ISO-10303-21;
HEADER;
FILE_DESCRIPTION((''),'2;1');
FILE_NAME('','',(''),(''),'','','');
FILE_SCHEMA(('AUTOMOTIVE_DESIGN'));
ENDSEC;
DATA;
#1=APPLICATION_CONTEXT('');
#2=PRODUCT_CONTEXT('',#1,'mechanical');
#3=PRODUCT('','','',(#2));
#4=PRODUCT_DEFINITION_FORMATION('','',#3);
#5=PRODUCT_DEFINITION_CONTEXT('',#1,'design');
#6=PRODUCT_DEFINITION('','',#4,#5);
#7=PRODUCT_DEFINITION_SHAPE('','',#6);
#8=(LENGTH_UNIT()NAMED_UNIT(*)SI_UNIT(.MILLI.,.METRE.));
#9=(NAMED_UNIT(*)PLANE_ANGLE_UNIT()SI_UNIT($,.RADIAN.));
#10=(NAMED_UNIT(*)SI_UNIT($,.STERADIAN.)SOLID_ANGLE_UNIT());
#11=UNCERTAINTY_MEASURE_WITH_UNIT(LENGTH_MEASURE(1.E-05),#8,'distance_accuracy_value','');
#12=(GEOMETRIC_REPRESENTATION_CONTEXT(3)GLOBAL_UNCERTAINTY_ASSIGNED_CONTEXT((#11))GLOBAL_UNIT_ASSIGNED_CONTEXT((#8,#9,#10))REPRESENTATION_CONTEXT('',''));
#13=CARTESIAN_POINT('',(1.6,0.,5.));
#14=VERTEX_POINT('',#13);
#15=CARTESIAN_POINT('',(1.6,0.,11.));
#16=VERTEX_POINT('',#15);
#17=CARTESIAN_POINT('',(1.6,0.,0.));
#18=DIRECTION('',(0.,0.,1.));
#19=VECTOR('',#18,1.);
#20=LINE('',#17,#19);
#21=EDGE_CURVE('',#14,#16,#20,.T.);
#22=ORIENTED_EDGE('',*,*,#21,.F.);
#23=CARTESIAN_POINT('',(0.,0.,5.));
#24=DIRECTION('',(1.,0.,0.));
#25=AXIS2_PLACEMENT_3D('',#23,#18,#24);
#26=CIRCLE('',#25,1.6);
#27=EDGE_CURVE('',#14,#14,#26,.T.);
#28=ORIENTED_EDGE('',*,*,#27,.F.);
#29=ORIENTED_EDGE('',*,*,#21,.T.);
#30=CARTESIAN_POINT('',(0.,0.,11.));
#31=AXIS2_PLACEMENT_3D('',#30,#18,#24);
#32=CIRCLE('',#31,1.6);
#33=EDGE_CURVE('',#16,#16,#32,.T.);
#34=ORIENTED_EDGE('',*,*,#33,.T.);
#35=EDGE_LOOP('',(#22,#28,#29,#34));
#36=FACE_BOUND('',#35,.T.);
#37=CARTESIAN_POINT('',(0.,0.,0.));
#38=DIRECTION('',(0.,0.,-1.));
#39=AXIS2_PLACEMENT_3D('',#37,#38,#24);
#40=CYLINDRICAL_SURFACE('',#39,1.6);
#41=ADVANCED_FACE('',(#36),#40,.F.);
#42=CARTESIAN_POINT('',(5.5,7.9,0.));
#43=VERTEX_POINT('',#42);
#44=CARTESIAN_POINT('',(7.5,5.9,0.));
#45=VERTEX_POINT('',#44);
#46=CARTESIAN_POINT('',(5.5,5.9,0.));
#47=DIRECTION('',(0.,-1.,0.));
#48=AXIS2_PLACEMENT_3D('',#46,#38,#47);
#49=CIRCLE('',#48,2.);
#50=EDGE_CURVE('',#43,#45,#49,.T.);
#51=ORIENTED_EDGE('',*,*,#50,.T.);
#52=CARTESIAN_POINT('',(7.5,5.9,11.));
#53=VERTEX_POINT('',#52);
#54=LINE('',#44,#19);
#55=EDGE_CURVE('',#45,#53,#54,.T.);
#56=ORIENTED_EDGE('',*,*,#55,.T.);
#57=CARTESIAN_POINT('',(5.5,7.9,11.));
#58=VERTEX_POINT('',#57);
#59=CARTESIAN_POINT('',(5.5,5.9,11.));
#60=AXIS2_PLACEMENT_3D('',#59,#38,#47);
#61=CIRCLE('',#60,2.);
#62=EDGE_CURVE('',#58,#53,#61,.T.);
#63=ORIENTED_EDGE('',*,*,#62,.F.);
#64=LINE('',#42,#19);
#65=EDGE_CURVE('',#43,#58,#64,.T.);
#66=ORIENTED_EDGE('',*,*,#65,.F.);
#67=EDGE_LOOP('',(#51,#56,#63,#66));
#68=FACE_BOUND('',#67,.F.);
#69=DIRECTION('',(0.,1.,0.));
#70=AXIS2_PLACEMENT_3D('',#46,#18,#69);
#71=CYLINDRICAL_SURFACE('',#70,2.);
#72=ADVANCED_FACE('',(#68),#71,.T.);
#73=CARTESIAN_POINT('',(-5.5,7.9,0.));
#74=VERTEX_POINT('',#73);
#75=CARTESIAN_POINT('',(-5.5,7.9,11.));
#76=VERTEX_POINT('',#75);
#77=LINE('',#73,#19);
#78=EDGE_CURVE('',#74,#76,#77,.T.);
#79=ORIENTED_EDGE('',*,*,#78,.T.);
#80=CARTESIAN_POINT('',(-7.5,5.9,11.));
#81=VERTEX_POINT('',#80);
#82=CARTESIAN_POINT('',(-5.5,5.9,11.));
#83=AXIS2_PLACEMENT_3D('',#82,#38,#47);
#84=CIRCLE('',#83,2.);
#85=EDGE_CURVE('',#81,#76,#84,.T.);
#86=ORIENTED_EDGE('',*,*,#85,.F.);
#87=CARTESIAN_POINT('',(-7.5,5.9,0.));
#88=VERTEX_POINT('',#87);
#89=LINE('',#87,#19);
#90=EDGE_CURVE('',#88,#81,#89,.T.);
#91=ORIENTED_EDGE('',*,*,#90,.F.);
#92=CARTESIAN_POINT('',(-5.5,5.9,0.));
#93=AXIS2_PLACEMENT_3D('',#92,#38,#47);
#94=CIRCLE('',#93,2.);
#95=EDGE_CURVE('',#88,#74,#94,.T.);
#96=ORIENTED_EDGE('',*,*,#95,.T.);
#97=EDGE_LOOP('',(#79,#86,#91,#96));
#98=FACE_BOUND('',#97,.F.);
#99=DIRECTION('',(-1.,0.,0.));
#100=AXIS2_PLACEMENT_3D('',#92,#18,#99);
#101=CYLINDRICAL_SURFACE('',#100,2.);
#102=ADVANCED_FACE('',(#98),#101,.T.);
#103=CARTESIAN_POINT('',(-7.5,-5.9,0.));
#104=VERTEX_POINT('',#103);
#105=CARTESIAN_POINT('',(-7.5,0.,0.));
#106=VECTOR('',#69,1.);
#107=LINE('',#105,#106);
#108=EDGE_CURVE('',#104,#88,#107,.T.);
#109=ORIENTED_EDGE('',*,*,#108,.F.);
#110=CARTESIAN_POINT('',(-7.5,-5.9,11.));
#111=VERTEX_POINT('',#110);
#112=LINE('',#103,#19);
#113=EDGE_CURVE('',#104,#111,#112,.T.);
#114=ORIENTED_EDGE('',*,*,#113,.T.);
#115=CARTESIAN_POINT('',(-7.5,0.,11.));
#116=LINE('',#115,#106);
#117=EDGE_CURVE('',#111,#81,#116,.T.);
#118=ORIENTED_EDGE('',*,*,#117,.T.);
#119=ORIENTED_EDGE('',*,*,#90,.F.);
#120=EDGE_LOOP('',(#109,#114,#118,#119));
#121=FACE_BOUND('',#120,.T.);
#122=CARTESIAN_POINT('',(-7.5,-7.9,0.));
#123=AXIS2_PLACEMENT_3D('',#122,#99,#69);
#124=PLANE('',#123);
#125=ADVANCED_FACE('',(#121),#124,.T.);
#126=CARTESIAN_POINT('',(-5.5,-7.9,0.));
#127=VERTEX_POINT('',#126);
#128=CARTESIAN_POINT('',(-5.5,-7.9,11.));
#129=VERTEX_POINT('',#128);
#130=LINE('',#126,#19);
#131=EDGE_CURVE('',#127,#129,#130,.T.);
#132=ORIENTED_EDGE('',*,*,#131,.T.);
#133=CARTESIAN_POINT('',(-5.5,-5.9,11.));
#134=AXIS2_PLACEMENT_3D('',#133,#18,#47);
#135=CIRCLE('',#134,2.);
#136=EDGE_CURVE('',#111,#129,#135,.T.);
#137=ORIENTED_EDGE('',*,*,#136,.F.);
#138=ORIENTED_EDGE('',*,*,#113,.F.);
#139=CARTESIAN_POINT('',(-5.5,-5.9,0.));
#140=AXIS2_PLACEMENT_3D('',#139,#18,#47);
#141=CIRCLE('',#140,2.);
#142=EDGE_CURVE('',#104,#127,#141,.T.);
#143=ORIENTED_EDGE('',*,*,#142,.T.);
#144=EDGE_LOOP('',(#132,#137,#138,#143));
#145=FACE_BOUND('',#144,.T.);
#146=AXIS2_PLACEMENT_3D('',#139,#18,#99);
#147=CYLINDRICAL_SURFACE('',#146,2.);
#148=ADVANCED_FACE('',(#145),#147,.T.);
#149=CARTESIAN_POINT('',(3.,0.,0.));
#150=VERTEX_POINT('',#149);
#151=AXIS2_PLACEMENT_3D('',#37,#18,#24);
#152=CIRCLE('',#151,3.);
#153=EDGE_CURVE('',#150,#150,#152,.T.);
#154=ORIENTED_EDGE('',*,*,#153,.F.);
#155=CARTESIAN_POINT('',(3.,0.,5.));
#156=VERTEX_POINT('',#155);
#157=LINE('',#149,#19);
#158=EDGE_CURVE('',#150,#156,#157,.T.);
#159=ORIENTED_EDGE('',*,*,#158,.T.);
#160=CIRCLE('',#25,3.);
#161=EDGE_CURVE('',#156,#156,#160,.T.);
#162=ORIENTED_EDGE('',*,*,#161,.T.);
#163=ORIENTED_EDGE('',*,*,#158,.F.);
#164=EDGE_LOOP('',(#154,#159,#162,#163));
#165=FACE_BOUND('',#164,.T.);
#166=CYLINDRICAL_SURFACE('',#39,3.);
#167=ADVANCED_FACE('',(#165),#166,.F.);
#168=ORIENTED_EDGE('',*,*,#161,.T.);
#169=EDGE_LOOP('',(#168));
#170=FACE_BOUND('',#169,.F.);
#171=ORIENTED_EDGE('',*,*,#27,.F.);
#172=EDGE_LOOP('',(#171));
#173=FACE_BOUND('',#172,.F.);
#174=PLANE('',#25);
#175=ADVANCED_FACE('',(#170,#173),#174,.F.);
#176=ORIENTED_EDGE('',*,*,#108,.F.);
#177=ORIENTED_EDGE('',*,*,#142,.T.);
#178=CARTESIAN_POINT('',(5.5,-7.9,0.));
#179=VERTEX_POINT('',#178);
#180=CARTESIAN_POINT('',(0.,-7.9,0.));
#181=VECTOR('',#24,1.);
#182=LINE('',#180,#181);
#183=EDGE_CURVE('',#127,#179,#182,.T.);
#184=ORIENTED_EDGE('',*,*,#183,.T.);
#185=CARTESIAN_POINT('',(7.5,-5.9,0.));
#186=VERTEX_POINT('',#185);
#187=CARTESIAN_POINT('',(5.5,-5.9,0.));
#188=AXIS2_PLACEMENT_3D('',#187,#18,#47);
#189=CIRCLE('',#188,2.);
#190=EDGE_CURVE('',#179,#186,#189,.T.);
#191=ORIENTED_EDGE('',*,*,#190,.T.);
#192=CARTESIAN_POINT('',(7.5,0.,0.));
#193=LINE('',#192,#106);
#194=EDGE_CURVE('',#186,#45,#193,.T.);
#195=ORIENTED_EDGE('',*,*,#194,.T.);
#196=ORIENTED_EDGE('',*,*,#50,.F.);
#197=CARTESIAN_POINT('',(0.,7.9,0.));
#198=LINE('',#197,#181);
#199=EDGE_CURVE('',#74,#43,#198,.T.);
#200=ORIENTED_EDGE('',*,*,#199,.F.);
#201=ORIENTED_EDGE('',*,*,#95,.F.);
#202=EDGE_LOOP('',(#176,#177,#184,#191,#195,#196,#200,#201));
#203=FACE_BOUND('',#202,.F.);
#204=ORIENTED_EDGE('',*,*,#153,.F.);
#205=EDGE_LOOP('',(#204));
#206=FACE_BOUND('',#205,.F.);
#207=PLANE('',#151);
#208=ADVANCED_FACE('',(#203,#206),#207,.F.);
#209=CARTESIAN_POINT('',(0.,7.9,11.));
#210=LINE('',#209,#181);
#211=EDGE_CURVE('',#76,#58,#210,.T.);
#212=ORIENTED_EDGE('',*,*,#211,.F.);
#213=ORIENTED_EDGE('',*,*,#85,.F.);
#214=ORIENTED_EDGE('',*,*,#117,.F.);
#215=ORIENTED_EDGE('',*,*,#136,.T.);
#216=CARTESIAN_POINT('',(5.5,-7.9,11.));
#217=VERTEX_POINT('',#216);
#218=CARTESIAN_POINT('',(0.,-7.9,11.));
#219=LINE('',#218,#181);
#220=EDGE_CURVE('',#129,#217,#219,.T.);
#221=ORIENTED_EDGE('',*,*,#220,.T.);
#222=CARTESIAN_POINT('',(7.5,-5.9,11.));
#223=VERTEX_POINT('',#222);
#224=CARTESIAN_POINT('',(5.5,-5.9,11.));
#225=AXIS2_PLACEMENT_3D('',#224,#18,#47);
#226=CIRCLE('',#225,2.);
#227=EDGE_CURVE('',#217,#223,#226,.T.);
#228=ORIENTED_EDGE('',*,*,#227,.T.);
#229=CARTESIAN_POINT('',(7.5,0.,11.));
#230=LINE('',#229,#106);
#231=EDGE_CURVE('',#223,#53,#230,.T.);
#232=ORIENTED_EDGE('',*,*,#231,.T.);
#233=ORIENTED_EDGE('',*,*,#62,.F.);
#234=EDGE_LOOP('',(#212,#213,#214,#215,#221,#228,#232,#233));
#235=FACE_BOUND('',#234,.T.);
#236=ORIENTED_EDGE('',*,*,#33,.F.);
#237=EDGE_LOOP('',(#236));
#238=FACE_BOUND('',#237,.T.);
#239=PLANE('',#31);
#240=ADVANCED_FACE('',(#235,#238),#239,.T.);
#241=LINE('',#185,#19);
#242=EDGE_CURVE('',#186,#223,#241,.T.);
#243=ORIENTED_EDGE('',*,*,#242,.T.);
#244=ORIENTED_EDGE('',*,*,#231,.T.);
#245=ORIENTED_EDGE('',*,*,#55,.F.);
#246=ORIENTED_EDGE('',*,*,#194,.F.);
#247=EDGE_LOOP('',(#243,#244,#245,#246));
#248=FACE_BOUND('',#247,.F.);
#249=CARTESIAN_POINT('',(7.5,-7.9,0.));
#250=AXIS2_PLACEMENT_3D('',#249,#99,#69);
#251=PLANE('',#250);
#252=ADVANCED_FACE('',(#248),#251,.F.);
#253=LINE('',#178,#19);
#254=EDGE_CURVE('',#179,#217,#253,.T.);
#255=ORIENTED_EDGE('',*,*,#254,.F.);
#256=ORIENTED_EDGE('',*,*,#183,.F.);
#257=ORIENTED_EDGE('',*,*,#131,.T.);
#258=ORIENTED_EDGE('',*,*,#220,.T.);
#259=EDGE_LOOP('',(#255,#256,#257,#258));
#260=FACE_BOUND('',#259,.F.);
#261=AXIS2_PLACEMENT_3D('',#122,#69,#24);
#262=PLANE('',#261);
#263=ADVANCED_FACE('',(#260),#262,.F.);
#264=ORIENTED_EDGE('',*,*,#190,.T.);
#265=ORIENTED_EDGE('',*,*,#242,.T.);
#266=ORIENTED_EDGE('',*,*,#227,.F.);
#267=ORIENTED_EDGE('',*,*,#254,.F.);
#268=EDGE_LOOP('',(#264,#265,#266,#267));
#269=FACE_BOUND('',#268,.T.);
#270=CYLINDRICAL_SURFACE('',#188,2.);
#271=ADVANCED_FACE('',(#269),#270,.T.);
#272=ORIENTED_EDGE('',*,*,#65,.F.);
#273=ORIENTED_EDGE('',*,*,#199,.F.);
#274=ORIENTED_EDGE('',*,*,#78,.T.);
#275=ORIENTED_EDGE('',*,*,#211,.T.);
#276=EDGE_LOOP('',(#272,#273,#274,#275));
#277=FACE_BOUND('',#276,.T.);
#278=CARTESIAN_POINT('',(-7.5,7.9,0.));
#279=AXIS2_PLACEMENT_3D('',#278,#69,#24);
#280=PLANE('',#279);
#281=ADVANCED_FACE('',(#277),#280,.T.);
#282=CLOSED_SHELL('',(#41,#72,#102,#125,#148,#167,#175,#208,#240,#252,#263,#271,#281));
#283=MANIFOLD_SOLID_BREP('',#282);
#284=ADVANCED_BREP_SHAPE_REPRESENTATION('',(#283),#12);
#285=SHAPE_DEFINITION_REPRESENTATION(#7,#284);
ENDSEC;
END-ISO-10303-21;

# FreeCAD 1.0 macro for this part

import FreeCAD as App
import Part
import Sketcher

V = App.Vector
Q = App.Units.Quantity


def edges_at(feature, points):
    """Names of the edges that pass closest to the given points."""
    edges = feature.Shape.Edges
    near = lambda p: min(range(len(edges)), key=lambda i: edges[i].distToShape(Part.Vertex(*p))[0])
    return sorted({f"Edge{near(p) + 1}" for p in points})


def add_polygon(sketch, points):
    """Adds a closed chain of lines whose ends are joined by coincident constraints."""
    first, n = sketch.GeometryCount, len(points)
    for a, b in zip(points, points[1:] + points[:1]):
        sketch.addGeometry(Part.LineSegment(App.Vector(*a, 0), App.Vector(*b, 0)), False)
    for i in range(n):
        sketch.addConstraint(Sketcher.Constraint("Coincident", first + i, 2, first + (i + 1) % n, 1))

doc = App.newDocument("Part")
params = doc.addObject("Spreadsheet::Sheet", "Params")
for row, (alias, value) in enumerate([
    ("sketch1_diameter", "3.2 mm"),
    ("sketch1_width", "15 mm"),
    ("sketch1_height", "15.8 mm"),
    ("pad1_length", "11 mm"),
    ("sketch2_diameter", "6 mm"),
    ("sketch2_diameter2", "3.2 mm"),
    ("pocket1_length", "5 mm"),
    ("fillet_radius", "2 mm"),
], start=1):
    params.set(f"A{row}", alias)
    params.set(f"B{row}", "=" + value)
    params.setAlias(f"B{row}", alias)

body = doc.addObject("PartDesign::Body", "Body")

# Sketch on XY plane
sketch1 = doc.addObject("Sketcher::SketchObject", "Sketch")
body.addObject(sketch1)
sketch1.AttachmentSupport = (doc.XY_Plane, [""])
sketch1.MapMode = "FlatFace"
add_polygon(sketch1, [(-7.5, 7.9), (-7.5, -7.9), (7.5, -7.9), (7.5, 7.9)])  # lines 0-3
sketch1.addGeometry(Part.Circle(V(0, 0, 0), V(0, 0, 1), 1.6), False)  # 4
sketch1.addConstraint([
    Sketcher.Constraint("Vertical", 0),
    Sketcher.Constraint("Horizontal", 1),
    Sketcher.Constraint("Vertical", 2),
    Sketcher.Constraint("Horizontal", 3),
    Sketcher.Constraint("Coincident", 4, 3, -1, 1),
    Sketcher.Constraint("Symmetric", 0, 2, 2, 2, -1, 1),
    Sketcher.Constraint("Diameter", 4, Q("3.2 mm")),
    Sketcher.Constraint("DistanceX", 1, 1, 1, 2, Q("15 mm")),
    Sketcher.Constraint("DistanceY", 0, 2, 0, 1, Q("15.8 mm")),
])
sketch1.setExpression("Constraints[10]", "Params.sketch1_diameter")
sketch1.setExpression("Constraints[11]", "Params.sketch1_width")
sketch1.setExpression("Constraints[12]", "Params.sketch1_height")
pad1 = doc.addObject("PartDesign::Pad", "Pad")
body.addObject(pad1)
pad1.Profile = sketch1
pad1.setExpression("Length", "Params.pad1_length")

# Sketch on XY plane
sketch2 = doc.addObject("Sketcher::SketchObject", "Sketch001")
body.addObject(sketch2)
sketch2.AttachmentSupport = (doc.XY_Plane, [""])
sketch2.MapMode = "FlatFace"
sketch2.addGeometry([
    Part.Circle(V(0, 0, 0), V(0, 0, 1), 3),
    Part.Circle(V(0, 0, 0), V(0, 0, 1), 1.6),
], False)
sketch2.addConstraint([
    Sketcher.Constraint("Coincident", 0, 3, -1, 1),
    Sketcher.Constraint("Coincident", 1, 3, -1, 1),
    Sketcher.Constraint("Diameter", 0, Q("6 mm")),
    Sketcher.Constraint("Diameter", 1, Q("3.2 mm")),
])
sketch2.setExpression("Constraints[2]", "Params.sketch2_diameter")
sketch2.setExpression("Constraints[3]", "Params.sketch2_diameter2")
pocket1 = doc.addObject("PartDesign::Pocket", "Pocket")
body.addObject(pocket1)
pocket1.Profile = sketch2
pocket1.setExpression("Length", "Params.pocket1_length")
pocket1.Reversed = True
doc.recompute()

fillet = doc.addObject("PartDesign::Fillet", "Fillet")
body.addObject(fillet)
fillet.Base = (pocket1, edges_at(pocket1, [
    (-7.5, 7.9, 5.5),
    (-7.5, -7.9, 5.5),
    (7.5, -7.9, 5.5),
    (7.5, 7.9, 5.5),
]))
fillet.setExpression("Radius", "Params.fillet_radius")

doc.recompute()
